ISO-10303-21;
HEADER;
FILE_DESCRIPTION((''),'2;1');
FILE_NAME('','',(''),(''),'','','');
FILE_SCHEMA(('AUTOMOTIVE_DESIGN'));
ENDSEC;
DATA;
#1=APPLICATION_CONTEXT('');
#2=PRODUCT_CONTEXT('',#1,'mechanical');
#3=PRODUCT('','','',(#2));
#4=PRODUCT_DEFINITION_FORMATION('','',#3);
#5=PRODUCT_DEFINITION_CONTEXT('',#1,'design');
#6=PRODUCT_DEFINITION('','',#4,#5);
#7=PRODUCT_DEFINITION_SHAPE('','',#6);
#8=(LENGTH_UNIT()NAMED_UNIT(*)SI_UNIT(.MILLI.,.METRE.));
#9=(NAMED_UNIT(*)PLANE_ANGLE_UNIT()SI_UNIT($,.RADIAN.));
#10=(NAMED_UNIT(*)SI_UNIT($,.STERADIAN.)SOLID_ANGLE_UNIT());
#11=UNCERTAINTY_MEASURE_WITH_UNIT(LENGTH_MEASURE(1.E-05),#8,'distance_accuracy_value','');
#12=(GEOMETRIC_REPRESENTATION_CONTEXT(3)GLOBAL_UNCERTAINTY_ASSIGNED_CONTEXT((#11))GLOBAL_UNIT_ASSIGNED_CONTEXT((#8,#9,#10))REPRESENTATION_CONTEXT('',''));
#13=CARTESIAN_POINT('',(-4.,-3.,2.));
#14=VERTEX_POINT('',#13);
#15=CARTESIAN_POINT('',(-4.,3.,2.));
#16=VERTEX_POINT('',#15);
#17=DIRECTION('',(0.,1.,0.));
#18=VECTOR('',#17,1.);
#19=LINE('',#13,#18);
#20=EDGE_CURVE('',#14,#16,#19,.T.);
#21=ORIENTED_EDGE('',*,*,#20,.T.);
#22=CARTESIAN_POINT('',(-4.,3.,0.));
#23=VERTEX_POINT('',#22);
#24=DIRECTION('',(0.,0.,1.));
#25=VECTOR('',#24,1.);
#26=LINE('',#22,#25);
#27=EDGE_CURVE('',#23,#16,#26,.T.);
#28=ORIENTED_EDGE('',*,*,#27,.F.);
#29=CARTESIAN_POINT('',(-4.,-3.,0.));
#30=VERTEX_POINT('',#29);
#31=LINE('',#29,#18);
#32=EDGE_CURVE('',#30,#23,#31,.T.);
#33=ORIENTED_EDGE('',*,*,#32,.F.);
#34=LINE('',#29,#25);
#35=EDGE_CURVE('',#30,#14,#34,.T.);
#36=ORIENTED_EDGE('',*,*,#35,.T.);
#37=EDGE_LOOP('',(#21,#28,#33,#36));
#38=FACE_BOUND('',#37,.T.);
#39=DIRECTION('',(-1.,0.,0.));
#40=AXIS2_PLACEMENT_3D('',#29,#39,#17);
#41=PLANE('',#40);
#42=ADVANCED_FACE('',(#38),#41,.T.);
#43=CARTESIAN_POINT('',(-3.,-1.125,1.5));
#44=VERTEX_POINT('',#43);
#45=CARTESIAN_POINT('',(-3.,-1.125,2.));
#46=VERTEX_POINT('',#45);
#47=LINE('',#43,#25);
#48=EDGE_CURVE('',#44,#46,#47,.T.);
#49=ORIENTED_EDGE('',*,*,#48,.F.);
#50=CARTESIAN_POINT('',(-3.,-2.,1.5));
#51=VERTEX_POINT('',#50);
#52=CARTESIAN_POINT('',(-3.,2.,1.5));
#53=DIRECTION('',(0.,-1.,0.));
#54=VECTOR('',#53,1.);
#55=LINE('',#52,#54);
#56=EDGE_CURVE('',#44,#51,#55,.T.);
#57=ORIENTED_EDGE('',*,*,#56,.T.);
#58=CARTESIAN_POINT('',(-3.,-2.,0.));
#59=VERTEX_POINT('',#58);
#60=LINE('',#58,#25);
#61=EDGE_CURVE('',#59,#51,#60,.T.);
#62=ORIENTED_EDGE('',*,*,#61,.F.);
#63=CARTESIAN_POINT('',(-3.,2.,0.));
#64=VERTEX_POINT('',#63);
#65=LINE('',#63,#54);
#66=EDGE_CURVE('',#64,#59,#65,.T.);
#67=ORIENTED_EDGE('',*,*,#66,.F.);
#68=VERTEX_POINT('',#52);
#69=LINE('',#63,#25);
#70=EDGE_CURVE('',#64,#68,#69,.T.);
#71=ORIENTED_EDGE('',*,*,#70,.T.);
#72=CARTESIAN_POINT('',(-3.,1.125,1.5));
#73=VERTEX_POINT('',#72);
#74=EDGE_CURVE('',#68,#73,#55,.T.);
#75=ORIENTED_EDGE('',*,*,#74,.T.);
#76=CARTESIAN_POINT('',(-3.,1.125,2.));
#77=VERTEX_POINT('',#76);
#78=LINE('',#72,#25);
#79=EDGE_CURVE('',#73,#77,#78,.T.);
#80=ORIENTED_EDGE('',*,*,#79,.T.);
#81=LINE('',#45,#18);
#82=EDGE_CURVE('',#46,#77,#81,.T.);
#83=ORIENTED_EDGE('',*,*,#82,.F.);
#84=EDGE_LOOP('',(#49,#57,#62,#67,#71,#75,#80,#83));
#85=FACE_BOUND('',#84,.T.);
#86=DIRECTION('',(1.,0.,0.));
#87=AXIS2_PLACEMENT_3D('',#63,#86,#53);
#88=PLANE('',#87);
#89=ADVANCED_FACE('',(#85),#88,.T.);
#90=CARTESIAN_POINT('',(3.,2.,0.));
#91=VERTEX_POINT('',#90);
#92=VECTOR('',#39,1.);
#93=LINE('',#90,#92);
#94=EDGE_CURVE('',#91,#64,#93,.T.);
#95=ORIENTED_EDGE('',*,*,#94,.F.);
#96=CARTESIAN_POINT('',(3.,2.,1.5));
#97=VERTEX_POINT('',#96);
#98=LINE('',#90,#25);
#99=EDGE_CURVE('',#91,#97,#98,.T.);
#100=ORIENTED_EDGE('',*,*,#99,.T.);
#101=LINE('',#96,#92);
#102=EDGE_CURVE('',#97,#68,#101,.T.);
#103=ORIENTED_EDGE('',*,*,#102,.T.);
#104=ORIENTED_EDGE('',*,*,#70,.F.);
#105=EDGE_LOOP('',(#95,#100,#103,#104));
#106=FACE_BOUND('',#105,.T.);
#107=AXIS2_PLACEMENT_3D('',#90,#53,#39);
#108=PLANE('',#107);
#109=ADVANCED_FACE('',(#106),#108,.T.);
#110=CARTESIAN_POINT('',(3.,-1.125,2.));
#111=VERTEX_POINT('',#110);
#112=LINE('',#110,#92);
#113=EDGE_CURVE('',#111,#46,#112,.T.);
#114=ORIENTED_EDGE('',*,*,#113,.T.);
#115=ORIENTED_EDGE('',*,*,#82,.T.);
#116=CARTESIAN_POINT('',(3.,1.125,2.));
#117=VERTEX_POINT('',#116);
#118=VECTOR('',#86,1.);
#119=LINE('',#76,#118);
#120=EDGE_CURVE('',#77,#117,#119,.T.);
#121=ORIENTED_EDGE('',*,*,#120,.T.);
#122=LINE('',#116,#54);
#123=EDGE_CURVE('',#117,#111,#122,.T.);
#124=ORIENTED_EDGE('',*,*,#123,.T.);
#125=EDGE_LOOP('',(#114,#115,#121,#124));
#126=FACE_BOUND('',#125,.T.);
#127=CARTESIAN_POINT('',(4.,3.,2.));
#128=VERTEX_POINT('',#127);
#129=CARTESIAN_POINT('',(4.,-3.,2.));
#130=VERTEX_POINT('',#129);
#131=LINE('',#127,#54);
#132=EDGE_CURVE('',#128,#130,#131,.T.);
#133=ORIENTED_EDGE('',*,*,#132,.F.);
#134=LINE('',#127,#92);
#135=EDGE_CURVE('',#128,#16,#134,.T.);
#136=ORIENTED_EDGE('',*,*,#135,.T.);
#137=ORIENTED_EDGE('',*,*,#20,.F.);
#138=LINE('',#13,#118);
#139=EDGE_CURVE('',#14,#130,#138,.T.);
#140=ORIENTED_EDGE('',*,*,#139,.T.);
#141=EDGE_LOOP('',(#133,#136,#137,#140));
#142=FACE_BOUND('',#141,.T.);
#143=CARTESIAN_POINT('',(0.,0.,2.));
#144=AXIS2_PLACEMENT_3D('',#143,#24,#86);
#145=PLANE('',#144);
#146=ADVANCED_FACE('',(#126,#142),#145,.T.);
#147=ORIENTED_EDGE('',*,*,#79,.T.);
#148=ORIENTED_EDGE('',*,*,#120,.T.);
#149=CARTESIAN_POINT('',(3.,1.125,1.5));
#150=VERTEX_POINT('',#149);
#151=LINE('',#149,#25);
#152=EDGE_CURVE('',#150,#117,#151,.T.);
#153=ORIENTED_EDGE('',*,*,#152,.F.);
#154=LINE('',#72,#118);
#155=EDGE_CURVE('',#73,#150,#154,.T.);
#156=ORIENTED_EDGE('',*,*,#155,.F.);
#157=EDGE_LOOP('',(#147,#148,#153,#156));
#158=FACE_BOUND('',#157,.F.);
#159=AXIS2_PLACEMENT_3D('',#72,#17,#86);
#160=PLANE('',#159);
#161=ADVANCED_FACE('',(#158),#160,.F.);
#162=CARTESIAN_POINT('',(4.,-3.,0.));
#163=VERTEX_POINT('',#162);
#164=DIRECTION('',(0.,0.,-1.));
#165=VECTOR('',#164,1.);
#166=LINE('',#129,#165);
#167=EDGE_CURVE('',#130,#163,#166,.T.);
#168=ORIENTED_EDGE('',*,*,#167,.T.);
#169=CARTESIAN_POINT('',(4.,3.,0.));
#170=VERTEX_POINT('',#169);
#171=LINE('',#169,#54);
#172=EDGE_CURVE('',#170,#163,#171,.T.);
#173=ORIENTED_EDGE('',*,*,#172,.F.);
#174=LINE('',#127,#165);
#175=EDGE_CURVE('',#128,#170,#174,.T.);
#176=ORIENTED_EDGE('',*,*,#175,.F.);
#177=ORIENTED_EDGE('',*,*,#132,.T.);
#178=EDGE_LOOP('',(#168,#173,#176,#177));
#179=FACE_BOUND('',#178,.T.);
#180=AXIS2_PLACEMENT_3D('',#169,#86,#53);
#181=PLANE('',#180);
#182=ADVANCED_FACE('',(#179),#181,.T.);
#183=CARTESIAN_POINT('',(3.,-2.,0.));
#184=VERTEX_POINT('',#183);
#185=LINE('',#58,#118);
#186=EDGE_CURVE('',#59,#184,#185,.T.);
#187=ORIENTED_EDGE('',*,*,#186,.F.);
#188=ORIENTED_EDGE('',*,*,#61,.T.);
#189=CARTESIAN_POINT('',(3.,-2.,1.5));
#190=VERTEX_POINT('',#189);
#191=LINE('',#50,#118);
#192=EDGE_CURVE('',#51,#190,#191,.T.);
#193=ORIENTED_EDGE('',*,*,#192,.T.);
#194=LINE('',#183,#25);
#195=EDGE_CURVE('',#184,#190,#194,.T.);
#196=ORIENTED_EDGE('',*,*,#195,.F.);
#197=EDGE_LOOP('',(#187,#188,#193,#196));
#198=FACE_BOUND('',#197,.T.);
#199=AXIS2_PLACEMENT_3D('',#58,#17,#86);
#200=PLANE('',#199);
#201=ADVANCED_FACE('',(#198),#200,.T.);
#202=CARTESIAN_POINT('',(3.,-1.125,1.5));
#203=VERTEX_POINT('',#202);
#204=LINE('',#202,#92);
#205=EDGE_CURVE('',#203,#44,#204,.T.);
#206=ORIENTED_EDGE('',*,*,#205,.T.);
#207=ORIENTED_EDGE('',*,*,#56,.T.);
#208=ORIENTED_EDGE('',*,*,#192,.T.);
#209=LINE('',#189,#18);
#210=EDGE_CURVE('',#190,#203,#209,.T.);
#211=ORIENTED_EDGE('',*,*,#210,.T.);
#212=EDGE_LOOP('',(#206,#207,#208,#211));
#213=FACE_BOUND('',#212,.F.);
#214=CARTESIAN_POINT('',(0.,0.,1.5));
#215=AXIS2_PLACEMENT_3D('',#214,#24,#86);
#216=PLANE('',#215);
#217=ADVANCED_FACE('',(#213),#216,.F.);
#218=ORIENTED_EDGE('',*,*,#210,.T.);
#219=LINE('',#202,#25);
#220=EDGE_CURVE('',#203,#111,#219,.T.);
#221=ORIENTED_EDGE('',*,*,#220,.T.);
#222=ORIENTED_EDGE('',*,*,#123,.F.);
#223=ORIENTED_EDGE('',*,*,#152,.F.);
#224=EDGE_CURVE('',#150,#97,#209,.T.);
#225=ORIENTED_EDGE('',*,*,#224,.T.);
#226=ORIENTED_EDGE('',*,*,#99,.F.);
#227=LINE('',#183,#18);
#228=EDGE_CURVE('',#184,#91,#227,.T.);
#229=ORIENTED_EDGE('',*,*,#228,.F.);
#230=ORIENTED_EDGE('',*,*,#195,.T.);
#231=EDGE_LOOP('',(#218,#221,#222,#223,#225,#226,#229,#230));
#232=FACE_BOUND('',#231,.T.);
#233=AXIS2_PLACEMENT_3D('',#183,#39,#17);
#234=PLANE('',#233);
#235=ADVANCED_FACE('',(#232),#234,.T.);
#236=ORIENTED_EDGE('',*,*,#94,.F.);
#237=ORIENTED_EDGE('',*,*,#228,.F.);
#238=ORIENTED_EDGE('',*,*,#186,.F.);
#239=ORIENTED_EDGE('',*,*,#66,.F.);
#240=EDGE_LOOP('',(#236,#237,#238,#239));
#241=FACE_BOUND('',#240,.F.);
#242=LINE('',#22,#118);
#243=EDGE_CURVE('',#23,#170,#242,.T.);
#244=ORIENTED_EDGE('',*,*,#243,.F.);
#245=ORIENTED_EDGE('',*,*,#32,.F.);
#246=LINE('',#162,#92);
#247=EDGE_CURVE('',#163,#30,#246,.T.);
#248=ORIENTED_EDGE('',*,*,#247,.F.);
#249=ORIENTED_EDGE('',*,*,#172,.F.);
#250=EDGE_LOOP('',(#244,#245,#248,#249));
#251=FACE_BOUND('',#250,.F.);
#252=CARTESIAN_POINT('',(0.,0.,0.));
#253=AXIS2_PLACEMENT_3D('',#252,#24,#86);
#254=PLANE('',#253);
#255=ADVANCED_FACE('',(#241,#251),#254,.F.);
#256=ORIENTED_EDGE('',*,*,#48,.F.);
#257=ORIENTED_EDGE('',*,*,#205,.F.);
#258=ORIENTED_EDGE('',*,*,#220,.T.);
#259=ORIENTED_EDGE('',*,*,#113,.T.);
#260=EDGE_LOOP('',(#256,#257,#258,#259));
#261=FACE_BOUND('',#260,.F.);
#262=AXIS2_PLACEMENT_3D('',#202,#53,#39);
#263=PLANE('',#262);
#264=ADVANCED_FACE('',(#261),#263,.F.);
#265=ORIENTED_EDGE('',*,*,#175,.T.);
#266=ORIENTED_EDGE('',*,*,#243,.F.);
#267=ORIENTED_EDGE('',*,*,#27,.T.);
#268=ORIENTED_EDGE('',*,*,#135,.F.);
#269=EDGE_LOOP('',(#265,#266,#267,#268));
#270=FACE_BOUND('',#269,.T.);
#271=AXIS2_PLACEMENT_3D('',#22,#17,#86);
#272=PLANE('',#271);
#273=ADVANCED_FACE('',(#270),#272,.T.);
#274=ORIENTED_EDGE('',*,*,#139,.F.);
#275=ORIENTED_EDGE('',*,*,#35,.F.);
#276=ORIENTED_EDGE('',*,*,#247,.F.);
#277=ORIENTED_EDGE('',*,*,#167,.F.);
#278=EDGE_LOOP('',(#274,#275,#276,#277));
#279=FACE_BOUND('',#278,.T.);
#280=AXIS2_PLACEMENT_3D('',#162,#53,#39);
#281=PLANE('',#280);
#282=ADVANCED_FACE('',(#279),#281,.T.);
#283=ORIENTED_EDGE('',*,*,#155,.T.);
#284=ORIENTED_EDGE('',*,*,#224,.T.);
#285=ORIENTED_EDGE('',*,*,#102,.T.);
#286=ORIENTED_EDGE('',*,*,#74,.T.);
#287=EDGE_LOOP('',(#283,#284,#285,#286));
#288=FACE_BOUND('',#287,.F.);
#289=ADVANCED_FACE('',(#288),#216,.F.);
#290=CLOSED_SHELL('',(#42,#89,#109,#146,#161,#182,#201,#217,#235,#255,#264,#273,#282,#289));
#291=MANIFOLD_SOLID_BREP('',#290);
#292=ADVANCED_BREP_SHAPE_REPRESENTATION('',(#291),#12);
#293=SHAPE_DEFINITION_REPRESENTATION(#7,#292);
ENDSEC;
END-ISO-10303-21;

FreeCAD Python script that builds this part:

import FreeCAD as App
import Part
import Sketcher

V = App.Vector
Q = App.Units.Quantity

doc = App.newDocument("Part")
body = doc.addObject("PartDesign::Body", "Body")

# Sketch on XY plane
sketch1 = body.newObject("Sketcher::SketchObject", "Sketch")
sketch1.AttachmentSupport = (doc.getObject("XY_Plane"), [""])
sketch1.MapMode = "FlatFace"
sketch1.addGeometry([
    Part.LineSegment(V(4, 3, 0), V(-4, 3, 0)),  # 0
    Part.LineSegment(V(-4, 3, 0), V(-4, -3, 0)),  # 1
    Part.LineSegment(V(-4, -3, 0), V(4, -3, 0)),  # 2
    Part.LineSegment(V(4, -3, 0), V(4, 3, 0)),  # 3
    Part.LineSegment(V(-3, 2, 0), V(3, 2, 0)),  # 4
    Part.LineSegment(V(3, 2, 0), V(3, -2, 0)),  # 5
    Part.LineSegment(V(3, -2, 0), V(-3, -2, 0)),  # 6
    Part.LineSegment(V(-3, -2, 0), V(-3, 2, 0)),  # 7
], False)
sketch1.addConstraint([
    Sketcher.Constraint("Coincident", 0, 2, 1, 1),
    Sketcher.Constraint("Coincident", 1, 2, 2, 1),
    Sketcher.Constraint("Coincident", 2, 2, 3, 1),
    Sketcher.Constraint("Coincident", 3, 2, 0, 1),
    Sketcher.Constraint("Coincident", 4, 2, 5, 1),
    Sketcher.Constraint("Coincident", 5, 2, 6, 1),
    Sketcher.Constraint("Coincident", 6, 2, 7, 1),
    Sketcher.Constraint("Coincident", 7, 2, 4, 1),
    Sketcher.Constraint("Horizontal", 0),
    Sketcher.Constraint("Vertical", 1),
    Sketcher.Constraint("Horizontal", 2),
    Sketcher.Constraint("Vertical", 3),
    Sketcher.Constraint("Horizontal", 4),
    Sketcher.Constraint("Vertical", 5),
    Sketcher.Constraint("Horizontal", 6),
    Sketcher.Constraint("Vertical", 7),
    Sketcher.Constraint("Symmetric", 0, 2, 2, 2, -1, 1),
    Sketcher.Constraint("Symmetric", 4, 2, 6, 2, -1, 1),
    Sketcher.Constraint("Equal", 6, 1),
    Sketcher.Constraint("DistanceX", 0, 2, 0, 1, Q("8 mm")),
    Sketcher.Constraint("DistanceX", 4, 1, 4, 2, Q("6 mm")),
    Sketcher.Constraint("DistanceY", 4, 2, 3, 2, Q("1 mm")),
])
pad1 = body.newObject("PartDesign::Pad", "Pad")
pad1.Profile = sketch1
pad1.Length = 1.5

# Sketch on XY plane
sketch2 = body.newObject("Sketcher::SketchObject", "Sketch001")
sketch2.AttachmentSupport = (doc.getObject("XY_Plane"), [""])
sketch2.MapMode = "FlatFace"
sketch2.AttachmentOffset = App.Placement(V(0, 0, 1.5), App.Rotation())
sketch2.addGeometry([
    Part.LineSegment(V(4, -3, 0), V(4, 3, 0)),  # 0
    Part.LineSegment(V(4, 3, 0), V(-4, 3, 0)),  # 1
    Part.LineSegment(V(-4, 3, 0), V(-4, -3, 0)),  # 2
    Part.LineSegment(V(-4, -3, 0), V(4, -3, 0)),  # 3
    Part.LineSegment(V(-3, -1.125, 0), V(-3, 1.125, 0)),  # 4
    Part.LineSegment(V(-3, 1.125, 0), V(3, 1.125, 0)),  # 5
    Part.LineSegment(V(3, 1.125, 0), V(3, -1.125, 0)),  # 6
    Part.LineSegment(V(3, -1.125, 0), V(-3, -1.125, 0)),  # 7
], False)
sketch2.addConstraint([
    Sketcher.Constraint("Coincident", 0, 2, 1, 1),
    Sketcher.Constraint("Coincident", 1, 2, 2, 1),
    Sketcher.Constraint("Coincident", 2, 2, 3, 1),
    Sketcher.Constraint("Coincident", 3, 2, 0, 1),
    Sketcher.Constraint("Coincident", 4, 2, 5, 1),
    Sketcher.Constraint("Coincident", 5, 2, 6, 1),
    Sketcher.Constraint("Coincident", 6, 2, 7, 1),
    Sketcher.Constraint("Coincident", 7, 2, 4, 1),
    Sketcher.Constraint("Vertical", 0),
    Sketcher.Constraint("Horizontal", 1),
    Sketcher.Constraint("Vertical", 2),
    Sketcher.Constraint("Horizontal", 3),
    Sketcher.Constraint("Vertical", 4),
    Sketcher.Constraint("Horizontal", 5),
    Sketcher.Constraint("Vertical", 6),
    Sketcher.Constraint("Horizontal", 7),
    Sketcher.Constraint("Symmetric", 0, 2, 2, 2, -1, 1),
    Sketcher.Constraint("Symmetric", 4, 2, 6, 2, -1, 1),
    Sketcher.Constraint("Equal", 7, 0),
    Sketcher.Constraint("DistanceX", 5, 1, 5, 2, Q("6 mm")),
    Sketcher.Constraint("DistanceY", 4, 1, 4, 2, Q("2.25 mm")),
    Sketcher.Constraint("DistanceX", 1, 2, 1, 1, Q("8 mm")),
])
pad2 = body.newObject("PartDesign::Pad", "Pad001")
pad2.Profile = sketch2
pad2.Length = 0.5

doc.recompute()
